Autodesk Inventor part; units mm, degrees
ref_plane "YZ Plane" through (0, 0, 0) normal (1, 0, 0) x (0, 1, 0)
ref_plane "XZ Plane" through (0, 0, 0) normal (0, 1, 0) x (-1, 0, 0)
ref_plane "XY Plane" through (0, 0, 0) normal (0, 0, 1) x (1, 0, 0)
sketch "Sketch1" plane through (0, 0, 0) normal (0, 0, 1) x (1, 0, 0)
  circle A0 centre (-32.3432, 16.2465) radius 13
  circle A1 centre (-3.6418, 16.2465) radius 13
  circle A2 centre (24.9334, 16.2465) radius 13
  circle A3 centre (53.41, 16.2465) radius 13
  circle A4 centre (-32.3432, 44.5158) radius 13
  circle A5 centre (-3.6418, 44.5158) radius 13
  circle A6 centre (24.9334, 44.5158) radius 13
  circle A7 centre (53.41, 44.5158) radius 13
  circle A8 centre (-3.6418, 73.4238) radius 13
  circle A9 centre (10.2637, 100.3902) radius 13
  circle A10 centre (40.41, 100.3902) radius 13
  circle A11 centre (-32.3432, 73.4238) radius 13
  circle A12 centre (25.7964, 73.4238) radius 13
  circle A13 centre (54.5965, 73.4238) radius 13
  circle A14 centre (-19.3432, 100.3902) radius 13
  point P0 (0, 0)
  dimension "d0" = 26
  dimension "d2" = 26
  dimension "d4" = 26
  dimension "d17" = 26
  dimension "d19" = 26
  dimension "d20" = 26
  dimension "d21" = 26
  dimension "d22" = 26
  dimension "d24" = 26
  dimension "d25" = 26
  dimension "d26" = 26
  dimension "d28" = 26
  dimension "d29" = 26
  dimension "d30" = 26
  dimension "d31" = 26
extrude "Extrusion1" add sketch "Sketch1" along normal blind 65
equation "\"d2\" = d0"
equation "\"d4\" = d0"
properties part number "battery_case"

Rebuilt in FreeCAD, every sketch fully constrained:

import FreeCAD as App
import Part
import Sketcher
from FreeCAD import Vector

doc = App.newDocument("Part")
params = doc.addObject("Spreadsheet::Sheet", "Params")
for row, (alias, value) in enumerate([
    ("sketch1_diameter", "26 mm"),
    ("pad1_length", "65 mm"),
], start=1):
    params.set(f"A{row}", alias)
    params.set(f"B{row}", "=" + value)
    params.setAlias(f"B{row}", alias)

body = doc.addObject("PartDesign::Body", "Body")
body.AllowCompound = True

# Sketch on XY plane
sketch1 = doc.addObject("Sketcher::SketchObject", "Sketch")
body.addObject(sketch1)
sketch1.AttachmentSupport = (doc.XY_Plane, [""])
sketch1.MapMode = "FlatFace"
sketch1.addGeometry(Part.Circle(Vector(-32, 16, 0), Vector(0, 0, 1), 13), False)
sketch1.addGeometry(Part.Circle(Vector(-4, 16, 0), Vector(0, 0, 1), 13), False)
sketch1.addGeometry(Part.Circle(Vector(25, 16, 0), Vector(0, 0, 1), 13), False)
sketch1.addGeometry(Part.Circle(Vector(53, 16, 0), Vector(0, 0, 1), 13), False)
sketch1.addGeometry(Part.Circle(Vector(-32, 45, 0), Vector(0, 0, 1), 13), False)
sketch1.addGeometry(Part.Circle(Vector(-4, 45, 0), Vector(0, 0, 1), 13), False)
sketch1.addGeometry(Part.Circle(Vector(25, 45, 0), Vector(0, 0, 1), 13), False)
sketch1.addGeometry(Part.Circle(Vector(53, 45, 0), Vector(0, 0, 1), 13), False)
sketch1.addGeometry(Part.Circle(Vector(-4, 73, 0), Vector(0, 0, 1), 13), False)
sketch1.addGeometry(Part.Circle(Vector(10, 100, 0), Vector(0, 0, 1), 13), False)
sketch1.addGeometry(Part.Circle(Vector(40, 100, 0), Vector(0, 0, 1), 13), False)
sketch1.addGeometry(Part.Circle(Vector(-32, 73, 0), Vector(0, 0, 1), 13), False)
sketch1.addGeometry(Part.Circle(Vector(26, 73, 0), Vector(0, 0, 1), 13), False)
sketch1.addGeometry(Part.Circle(Vector(55, 73, 0), Vector(0, 0, 1), 13), False)
sketch1.addGeometry(Part.Circle(Vector(-19, 100, 0), Vector(0, 0, 1), 13), False)
sketch1.addConstraint(Sketcher.Constraint("Equal", 0, 1))
sketch1.addConstraint(Sketcher.Constraint("Equal", 1, 2))
sketch1.addConstraint(Sketcher.Constraint("Equal", 2, 3))
sketch1.addConstraint(Sketcher.Constraint("Equal", 3, 4))
sketch1.addConstraint(Sketcher.Constraint("Equal", 4, 5))
sketch1.addConstraint(Sketcher.Constraint("Equal", 5, 6))
sketch1.addConstraint(Sketcher.Constraint("Equal", 6, 7))
sketch1.addConstraint(Sketcher.Constraint("Equal", 7, 8))
sketch1.addConstraint(Sketcher.Constraint("Equal", 8, 9))
sketch1.addConstraint(Sketcher.Constraint("Equal", 9, 10))
sketch1.addConstraint(Sketcher.Constraint("Equal", 10, 11))
sketch1.addConstraint(Sketcher.Constraint("Equal", 11, 12))
sketch1.addConstraint(Sketcher.Constraint("Equal", 12, 13))
sketch1.addConstraint(Sketcher.Constraint("Equal", 13, 14))
sketch1.addConstraint(Sketcher.Constraint("Horizontal", 0, 3, 1, 3))
sketch1.addConstraint(Sketcher.Constraint("Horizontal", 1, 3, 2, 3))
sketch1.addConstraint(Sketcher.Constraint("Horizontal", 2, 3, 3, 3))
sketch1.addConstraint(Sketcher.Constraint("Horizontal", 4, 3, 5, 3))
sketch1.addConstraint(Sketcher.Constraint("Horizontal", 5, 3, 6, 3))
sketch1.addConstraint(Sketcher.Constraint("Horizontal", 6, 3, 7, 3))
sketch1.addConstraint(Sketcher.Constraint("Horizontal", 9, 3, 10, 3))
sketch1.addConstraint(Sketcher.Constraint("Horizontal", 8, 3, 11, 3))
sketch1.addConstraint(Sketcher.Constraint("Horizontal", 11, 3, 12, 3))
sketch1.addConstraint(Sketcher.Constraint("Horizontal", 12, 3, 13, 3))
sketch1.addConstraint(Sketcher.Constraint("Horizontal", 10, 3, 14, 3))
sketch1.addConstraint(Sketcher.Constraint("Vertical", 0, 3, 4, 3))
sketch1.addConstraint(Sketcher.Constraint("Vertical", 1, 3, 5, 3))
sketch1.addConstraint(Sketcher.Constraint("Vertical", 2, 3, 6, 3))
sketch1.addConstraint(Sketcher.Constraint("Vertical", 3, 3, 7, 3))
sketch1.addConstraint(Sketcher.Constraint("Vertical", 5, 3, 8, 3))
sketch1.addConstraint(Sketcher.Constraint("Vertical", 4, 3, 11, 3))
sketch1.addConstraint(Sketcher.Constraint("Diameter", 0, 26.0))
sketch1.addConstraint(Sketcher.Constraint("DistanceX", 10, 3, 7, 3, 13.0))
sketch1.addConstraint(Sketcher.Constraint("DistanceX", 11, 3, 14, 3, 13.0))
sketch1.addConstraint(Sketcher.Constraint("DistanceX", 12, 3, 13, 3, 28.8))
sketch1.addConstraint(Sketcher.Constraint("DistanceX", -1, 1, 3, 3, 53.41))
sketch1.addConstraint(Sketcher.Constraint("DistanceY", 5, 3, 8, 3, 28.908))
sketch1.addConstraint(Sketcher.Constraint("DistanceX", 4, 3, 9, 3, 42.607))
sketch1.addConstraint(Sketcher.Constraint("DistanceX", 6, 3, 12, 3, 0.863))
sketch1.addConstraint(Sketcher.Constraint("DistanceX", 0, 3, -1, 1, 32.3432))
sketch1.addConstraint(Sketcher.Constraint("DistanceY", -1, 1, 0, 3, 16.2465))
sketch1.addConstraint(Sketcher.Constraint("DistanceX", 1, 3, -1, 1, 3.6418))
sketch1.addConstraint(Sketcher.Constraint("DistanceX", -1, 1, 2, 3, 24.9334))
sketch1.addConstraint(Sketcher.Constraint("DistanceY", -1, 1, 4, 3, 44.5158))
sketch1.addConstraint(Sketcher.Constraint("DistanceY", -1, 1, 9, 3, 100.3902))
sketch1.setExpression("Constraints[31]", "Params.sketch1_diameter")
pad1 = doc.addObject("PartDesign::Pad", "Pad")
body.addObject(pad1)
pad1.Profile = sketch1
pad1.setExpression("Length", "Params.pad1_length")

doc.recompute()
